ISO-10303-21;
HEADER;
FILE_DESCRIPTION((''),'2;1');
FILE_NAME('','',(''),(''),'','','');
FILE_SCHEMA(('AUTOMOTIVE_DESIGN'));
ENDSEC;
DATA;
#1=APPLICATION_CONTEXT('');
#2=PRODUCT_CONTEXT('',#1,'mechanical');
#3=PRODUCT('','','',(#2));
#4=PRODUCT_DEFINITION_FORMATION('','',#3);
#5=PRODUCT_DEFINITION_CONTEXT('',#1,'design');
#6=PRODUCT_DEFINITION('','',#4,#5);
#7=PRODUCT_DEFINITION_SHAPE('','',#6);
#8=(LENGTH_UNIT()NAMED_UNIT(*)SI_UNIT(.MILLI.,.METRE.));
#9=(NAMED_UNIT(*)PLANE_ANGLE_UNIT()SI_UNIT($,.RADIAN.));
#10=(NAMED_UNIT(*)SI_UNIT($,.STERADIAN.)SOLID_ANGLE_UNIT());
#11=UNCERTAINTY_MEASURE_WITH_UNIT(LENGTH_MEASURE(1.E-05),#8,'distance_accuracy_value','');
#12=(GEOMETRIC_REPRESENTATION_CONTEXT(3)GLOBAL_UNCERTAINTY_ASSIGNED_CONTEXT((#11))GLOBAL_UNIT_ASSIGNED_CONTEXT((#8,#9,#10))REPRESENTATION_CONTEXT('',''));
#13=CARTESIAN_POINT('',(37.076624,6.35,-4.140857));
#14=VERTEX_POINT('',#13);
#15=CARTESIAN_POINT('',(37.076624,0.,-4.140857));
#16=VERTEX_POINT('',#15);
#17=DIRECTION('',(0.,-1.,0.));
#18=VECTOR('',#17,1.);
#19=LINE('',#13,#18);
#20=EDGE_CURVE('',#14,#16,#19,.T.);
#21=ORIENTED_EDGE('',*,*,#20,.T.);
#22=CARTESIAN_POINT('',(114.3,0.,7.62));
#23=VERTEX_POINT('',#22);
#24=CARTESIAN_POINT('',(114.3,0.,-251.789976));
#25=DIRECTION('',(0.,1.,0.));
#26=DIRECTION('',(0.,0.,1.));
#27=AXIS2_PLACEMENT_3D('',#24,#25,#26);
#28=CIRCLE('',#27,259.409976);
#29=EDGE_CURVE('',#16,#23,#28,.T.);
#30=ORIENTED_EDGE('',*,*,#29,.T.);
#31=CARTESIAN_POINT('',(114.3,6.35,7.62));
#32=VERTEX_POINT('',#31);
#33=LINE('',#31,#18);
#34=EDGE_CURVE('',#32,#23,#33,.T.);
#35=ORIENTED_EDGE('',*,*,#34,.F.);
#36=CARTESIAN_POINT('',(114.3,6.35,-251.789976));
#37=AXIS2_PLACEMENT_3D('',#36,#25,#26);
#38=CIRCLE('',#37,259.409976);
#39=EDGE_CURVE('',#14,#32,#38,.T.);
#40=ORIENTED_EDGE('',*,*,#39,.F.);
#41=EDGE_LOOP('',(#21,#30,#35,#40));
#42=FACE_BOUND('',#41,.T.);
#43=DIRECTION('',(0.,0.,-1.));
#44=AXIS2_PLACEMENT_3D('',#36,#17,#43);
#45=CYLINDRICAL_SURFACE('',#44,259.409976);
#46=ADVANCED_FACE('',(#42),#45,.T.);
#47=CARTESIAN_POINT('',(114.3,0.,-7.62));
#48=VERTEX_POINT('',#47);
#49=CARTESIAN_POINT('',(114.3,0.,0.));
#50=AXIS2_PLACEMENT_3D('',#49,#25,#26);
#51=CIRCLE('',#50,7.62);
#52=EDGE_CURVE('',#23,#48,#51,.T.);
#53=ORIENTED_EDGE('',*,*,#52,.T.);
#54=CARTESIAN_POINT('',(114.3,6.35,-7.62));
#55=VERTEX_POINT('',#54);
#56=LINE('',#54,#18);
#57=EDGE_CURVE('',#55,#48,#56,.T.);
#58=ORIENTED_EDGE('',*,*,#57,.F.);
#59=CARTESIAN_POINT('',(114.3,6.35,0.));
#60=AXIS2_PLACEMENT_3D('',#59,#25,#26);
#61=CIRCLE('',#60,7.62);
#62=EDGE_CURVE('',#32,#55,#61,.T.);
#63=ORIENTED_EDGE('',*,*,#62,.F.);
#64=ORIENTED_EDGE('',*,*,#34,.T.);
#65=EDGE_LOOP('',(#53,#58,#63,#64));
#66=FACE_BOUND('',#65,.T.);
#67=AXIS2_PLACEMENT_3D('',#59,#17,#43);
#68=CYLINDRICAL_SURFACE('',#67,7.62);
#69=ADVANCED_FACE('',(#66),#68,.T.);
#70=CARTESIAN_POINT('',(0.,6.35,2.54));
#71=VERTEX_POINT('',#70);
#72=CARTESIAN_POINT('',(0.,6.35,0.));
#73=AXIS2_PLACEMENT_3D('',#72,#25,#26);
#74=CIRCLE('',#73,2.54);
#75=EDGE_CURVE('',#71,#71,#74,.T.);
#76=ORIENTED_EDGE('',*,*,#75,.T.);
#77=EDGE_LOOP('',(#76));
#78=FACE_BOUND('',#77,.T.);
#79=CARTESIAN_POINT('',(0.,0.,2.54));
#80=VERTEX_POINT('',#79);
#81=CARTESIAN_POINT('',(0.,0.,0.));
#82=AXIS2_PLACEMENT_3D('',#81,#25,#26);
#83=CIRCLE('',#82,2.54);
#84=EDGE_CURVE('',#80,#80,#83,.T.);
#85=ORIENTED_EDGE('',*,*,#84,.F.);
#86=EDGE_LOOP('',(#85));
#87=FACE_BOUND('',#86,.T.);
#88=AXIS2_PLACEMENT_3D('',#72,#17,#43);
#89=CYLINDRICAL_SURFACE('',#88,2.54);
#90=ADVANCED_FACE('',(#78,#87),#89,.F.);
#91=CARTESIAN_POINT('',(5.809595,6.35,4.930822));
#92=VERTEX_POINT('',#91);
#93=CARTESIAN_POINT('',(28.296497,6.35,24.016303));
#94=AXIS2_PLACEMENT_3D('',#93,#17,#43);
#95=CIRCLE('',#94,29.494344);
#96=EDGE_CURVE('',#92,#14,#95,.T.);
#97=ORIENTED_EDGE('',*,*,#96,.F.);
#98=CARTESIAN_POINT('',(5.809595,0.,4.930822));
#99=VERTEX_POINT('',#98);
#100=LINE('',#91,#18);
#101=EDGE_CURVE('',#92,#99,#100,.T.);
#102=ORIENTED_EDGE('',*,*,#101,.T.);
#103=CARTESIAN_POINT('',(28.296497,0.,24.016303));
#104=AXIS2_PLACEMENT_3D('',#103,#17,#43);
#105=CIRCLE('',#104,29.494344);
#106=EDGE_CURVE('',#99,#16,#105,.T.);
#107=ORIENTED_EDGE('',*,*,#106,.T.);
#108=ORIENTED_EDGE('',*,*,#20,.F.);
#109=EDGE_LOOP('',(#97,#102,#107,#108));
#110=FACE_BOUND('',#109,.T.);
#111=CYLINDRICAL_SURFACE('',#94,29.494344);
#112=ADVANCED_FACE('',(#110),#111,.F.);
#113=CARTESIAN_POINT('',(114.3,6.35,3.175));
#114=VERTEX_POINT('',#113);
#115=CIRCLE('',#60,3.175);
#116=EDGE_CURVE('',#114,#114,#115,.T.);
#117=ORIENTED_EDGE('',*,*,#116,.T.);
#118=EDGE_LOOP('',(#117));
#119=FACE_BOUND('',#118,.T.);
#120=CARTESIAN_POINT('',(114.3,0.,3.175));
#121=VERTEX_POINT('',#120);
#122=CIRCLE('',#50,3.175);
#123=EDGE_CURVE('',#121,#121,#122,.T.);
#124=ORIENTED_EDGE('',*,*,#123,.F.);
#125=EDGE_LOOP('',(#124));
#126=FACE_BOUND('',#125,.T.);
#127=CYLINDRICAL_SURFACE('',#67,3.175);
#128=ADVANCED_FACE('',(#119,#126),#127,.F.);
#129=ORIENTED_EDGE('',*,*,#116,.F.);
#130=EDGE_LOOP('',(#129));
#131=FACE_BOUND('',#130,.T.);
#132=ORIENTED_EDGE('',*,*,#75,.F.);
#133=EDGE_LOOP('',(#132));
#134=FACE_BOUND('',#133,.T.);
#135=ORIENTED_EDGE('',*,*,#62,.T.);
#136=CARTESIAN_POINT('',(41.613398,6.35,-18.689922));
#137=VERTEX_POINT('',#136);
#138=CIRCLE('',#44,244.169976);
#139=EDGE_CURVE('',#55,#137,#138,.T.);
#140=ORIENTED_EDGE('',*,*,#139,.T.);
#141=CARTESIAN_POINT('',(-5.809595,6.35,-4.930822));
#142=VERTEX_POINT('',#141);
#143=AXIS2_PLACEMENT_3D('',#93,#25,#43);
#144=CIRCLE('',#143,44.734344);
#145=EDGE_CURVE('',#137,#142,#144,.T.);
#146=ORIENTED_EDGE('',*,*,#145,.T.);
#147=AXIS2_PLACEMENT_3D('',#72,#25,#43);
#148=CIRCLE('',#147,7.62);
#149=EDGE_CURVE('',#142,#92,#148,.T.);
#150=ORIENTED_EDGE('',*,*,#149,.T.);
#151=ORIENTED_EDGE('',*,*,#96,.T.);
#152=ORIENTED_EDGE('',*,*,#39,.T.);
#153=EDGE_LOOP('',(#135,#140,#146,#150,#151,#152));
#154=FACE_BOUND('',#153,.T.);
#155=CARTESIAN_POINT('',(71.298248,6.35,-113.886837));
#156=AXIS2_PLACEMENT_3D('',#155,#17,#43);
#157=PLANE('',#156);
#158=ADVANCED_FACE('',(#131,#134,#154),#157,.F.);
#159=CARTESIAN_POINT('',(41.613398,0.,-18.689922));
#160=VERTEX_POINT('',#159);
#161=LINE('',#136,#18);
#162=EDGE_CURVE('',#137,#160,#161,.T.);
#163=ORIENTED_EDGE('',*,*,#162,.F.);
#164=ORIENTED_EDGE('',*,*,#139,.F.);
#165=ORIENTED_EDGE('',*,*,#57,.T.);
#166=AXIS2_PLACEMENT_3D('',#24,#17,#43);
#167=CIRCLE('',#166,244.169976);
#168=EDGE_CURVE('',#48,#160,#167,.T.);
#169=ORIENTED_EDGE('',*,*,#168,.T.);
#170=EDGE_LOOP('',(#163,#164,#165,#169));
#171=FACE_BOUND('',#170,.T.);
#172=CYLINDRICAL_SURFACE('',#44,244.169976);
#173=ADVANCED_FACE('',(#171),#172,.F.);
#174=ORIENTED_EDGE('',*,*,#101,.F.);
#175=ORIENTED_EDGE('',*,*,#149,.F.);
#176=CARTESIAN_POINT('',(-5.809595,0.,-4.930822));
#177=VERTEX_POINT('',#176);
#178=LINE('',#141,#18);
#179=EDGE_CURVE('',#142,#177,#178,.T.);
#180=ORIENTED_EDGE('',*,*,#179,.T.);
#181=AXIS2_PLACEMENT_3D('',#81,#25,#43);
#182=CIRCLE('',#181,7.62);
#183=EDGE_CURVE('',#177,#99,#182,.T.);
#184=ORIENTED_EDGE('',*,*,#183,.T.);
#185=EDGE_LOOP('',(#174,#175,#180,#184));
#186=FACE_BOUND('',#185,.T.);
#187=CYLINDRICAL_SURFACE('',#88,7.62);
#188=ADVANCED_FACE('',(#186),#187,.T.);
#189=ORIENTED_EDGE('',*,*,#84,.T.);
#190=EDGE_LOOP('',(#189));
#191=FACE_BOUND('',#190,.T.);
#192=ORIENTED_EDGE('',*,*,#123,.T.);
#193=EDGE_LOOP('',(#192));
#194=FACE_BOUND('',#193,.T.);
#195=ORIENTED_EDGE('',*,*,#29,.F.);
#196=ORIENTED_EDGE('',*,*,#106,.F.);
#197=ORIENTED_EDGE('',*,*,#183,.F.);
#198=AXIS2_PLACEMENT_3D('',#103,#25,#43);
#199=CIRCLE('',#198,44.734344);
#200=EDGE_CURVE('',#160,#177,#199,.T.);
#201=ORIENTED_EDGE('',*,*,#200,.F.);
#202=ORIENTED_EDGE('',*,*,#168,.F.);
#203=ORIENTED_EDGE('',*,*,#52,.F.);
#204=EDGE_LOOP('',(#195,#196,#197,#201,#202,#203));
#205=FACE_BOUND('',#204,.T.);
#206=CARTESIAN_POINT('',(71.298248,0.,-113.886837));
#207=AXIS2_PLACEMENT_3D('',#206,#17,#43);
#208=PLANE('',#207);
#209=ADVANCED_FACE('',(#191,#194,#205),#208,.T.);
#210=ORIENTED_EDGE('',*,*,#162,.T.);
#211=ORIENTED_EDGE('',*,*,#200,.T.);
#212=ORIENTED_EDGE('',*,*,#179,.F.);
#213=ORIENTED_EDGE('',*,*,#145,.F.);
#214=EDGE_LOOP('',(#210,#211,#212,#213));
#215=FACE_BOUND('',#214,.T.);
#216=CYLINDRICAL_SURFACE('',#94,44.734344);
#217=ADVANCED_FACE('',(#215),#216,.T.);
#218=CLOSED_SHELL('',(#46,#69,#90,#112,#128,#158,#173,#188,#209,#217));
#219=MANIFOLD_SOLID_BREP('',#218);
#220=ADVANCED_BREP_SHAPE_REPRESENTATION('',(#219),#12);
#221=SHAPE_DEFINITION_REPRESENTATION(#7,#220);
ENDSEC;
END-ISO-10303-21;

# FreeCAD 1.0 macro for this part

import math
import FreeCAD as App
import Part
import Sketcher
Q = App.Units.Quantity

doc = App.newDocument("Part")
body = doc.addObject("PartDesign::Body", "Body")

# Sketch on XZ plane
sketch1 = doc.addObject("Sketcher::SketchObject", "Sketch")
body.addObject(sketch1)
sketch1.AttachmentSupport = (doc.XZ_Plane, [""])
sketch1.MapMode = "FlatFace"
sketch1.addGeometry(Part.ArcOfCircle(Part.Circle(App.Vector(0, 0, 0), App.Vector(0, 0, 1), 7.6), math.radians(40), math.radians(220)), False)
sketch1.addGeometry(Part.ArcOfCircle(Part.Circle(App.Vector(28.3, 24, 0), App.Vector(0, 0, 1), 29.5), math.radians(-140), math.radians(-73)), False)
sketch1.addGeometry(Part.ArcOfCircle(Part.Circle(App.Vector(114.3, -251.8, 0), App.Vector(0, 0, 1), 259.4), math.radians(90), math.radians(107.32)), False)
sketch1.addGeometry(Part.ArcOfCircle(Part.Circle(App.Vector(114.3, 0, 0), App.Vector(0, 0, 1), 7.6), math.radians(-90), math.radians(90)), False)
sketch1.addGeometry(Part.ArcOfCircle(Part.Circle(App.Vector(114.3, -251.8, 0), App.Vector(0, 0, 1), 244.2), math.radians(90), math.radians(107.32)), False)
sketch1.addGeometry(Part.ArcOfCircle(Part.Circle(App.Vector(28.3, 24, 0), App.Vector(0, 0, 1), 44.7), math.radians(-140), math.radians(-73)), False)
sketch1.addGeometry(Part.Circle(App.Vector(114.3, 0, 0), App.Vector(0, 0, 1), 3.2), False)
sketch1.addGeometry(Part.Circle(App.Vector(0, 0, 0), App.Vector(0, 0, 1), 2.5), False)
sketch1.addConstraint(Sketcher.Constraint("Tangent", 0, 1, 1, 1))
sketch1.addConstraint(Sketcher.Constraint("Tangent", 1, 2, 2, 2))
sketch1.addConstraint(Sketcher.Constraint("Tangent", 2, 1, 3, 2))
sketch1.addConstraint(Sketcher.Constraint("Tangent", 3, 1, 4, 1))
sketch1.addConstraint(Sketcher.Constraint("Tangent", 4, 2, 5, 2))
sketch1.addConstraint(Sketcher.Constraint("Tangent", 5, 1, 0, 2))
sketch1.addConstraint(Sketcher.Constraint("Coincident", 0, 3, -1, 1))
sketch1.addConstraint(Sketcher.Constraint("Coincident", 7, 3, -1, 1))
sketch1.addConstraint(Sketcher.Constraint("Coincident", 4, 3, 2, 3))
sketch1.addConstraint(Sketcher.Constraint("Coincident", 5, 3, 1, 3))
sketch1.addConstraint(Sketcher.Constraint("Coincident", 6, 3, 3, 3))
sketch1.addConstraint(Sketcher.Constraint("PointOnObject", 3, 3, -1))
sketch1.addConstraint(Sketcher.Constraint("Vertical", 2, 3, 3, 3))
sketch1.addConstraint(Sketcher.Constraint("Diameter", 7, Q("0.2 in")))
sketch1.addConstraint(Sketcher.Constraint("Radius", 0, Q("0.3 in")))
sketch1.addConstraint(Sketcher.Constraint("Diameter", 6, Q("0.25 in")))
sketch1.addConstraint(Sketcher.Constraint("DistanceX", -1, 1, 2, 3, Q("4.5 in")))
sketch1.addConstraint(Sketcher.Constraint("Radius", 1, 29.494344))
sketch1.addConstraint(Sketcher.Constraint("Radius", 2, 259.409976))
pad1 = doc.addObject("PartDesign::Pad", "Pad")
body.addObject(pad1)
pad1.Profile = sketch1
pad1.Length = Q("0.25 in")
pad1.Reversed = True

doc.recompute()
